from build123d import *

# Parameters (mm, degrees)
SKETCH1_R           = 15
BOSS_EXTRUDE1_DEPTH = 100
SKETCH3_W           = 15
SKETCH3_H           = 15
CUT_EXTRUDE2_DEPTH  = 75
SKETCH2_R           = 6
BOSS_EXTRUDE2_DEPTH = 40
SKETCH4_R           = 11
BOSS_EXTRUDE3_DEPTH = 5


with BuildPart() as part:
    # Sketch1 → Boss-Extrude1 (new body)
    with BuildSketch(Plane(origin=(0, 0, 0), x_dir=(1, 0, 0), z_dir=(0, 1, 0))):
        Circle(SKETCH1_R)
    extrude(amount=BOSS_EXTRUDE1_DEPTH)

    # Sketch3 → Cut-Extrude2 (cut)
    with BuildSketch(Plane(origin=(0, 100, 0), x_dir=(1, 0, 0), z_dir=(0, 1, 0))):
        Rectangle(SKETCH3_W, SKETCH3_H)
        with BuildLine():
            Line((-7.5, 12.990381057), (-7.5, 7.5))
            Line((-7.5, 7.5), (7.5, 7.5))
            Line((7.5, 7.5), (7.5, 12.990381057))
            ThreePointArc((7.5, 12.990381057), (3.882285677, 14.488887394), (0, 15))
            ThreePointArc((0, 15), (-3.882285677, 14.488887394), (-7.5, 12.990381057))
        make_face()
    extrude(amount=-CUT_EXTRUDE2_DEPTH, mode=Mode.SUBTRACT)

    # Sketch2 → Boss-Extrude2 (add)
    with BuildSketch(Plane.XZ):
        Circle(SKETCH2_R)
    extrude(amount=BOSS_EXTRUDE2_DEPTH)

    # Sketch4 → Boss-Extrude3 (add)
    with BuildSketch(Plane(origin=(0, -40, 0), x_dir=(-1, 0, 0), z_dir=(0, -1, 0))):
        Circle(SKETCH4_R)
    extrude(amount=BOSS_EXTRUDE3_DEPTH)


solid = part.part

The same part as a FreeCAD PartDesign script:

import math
import FreeCAD as App
import Part
import Sketcher

V = App.Vector
Q = App.Units.Quantity

doc = App.newDocument("Part")
body = doc.addObject("PartDesign::Body", "Body")

sketch1 = body.newObject("Sketcher::SketchObject", "Sketch")
sketch1.AttachmentSupport = (doc.getObject("XZ_Plane"), [""])
sketch1.MapMode = "FlatFace"
sketch1.addGeometry(Part.Circle(V(0, 0, 0), V(0, 0, 1), 15), False)
sketch1.addConstraint([
    Sketcher.Constraint("Coincident", 0, 3, -1, 1),
    Sketcher.Constraint("Diameter", 0, Q("30 mm")),
])
pad1 = body.newObject("PartDesign::Pad", "Pad")
pad1.Profile = sketch1
pad1.Length = 100
pad1.Reversed = True

sketch2 = body.newObject("Sketcher::SketchObject", "Sketch001")
sketch2.AttachmentSupport = (doc.getObject("XZ_Plane"), [""])
sketch2.MapMode = "FlatFace"
sketch2.AttachmentOffset = App.Placement(V(0, 0, -100), App.Rotation())
sketch2.addGeometry([
    Part.LineSegment(V(-8, 8, 0), V(8, 8, 0)),
    Part.LineSegment(V(8, 8, 0), V(8, -13, 0)),
    Part.ArcOfCircle(Part.Circle(V(0, 0, 0), V(0, 0, 1), 15), math.radians(-90), math.radians(-60)),
    Part.ArcOfCircle(Part.Circle(V(0, 0, 0), V(0, 0, 1), 15), math.radians(-120), math.radians(-90)),
    Part.LineSegment(V(-8, -13, 0), V(-8, 8, 0)),
], False)
sketch2.addConstraint([
    Sketcher.Constraint("Coincident", 0, 2, 1, 1),
    Sketcher.Constraint("Coincident", 1, 2, 2, 2),
    Sketcher.Constraint("Tangent", 2, 1, 3, 2),
    Sketcher.Constraint("Coincident", 3, 1, 4, 1),
    Sketcher.Constraint("Coincident", 4, 2, 0, 1),
    Sketcher.Constraint("Horizontal", 0),
    Sketcher.Constraint("Vertical", 1),
    Sketcher.Constraint("Vertical", 4),
    Sketcher.Constraint("Coincident", 2, 3, -1, 1),
    Sketcher.Constraint("Equal", 2, 3),
    Sketcher.Constraint("PointOnObject", 2, 1, -2),
    Sketcher.Constraint("Horizontal", 1, 2, 3, 1),
    Sketcher.Constraint("Radius", 2, Q("15 mm")),
    Sketcher.Constraint("DistanceX", 0, 1, 0, 2, Q("15 mm")),
    Sketcher.Constraint("DistanceY", -1, 1, 0, 2, Q("7.5 mm")),
])
pocket1 = body.newObject("PartDesign::Pocket", "Pocket")
pocket1.Profile = sketch2
pocket1.Length = 75
pocket1.Reversed = True

sketch3 = body.newObject("Sketcher::SketchObject", "Sketch002")
sketch3.AttachmentSupport = (doc.getObject("XZ_Plane"), [""])
sketch3.MapMode = "FlatFace"
sketch3.addGeometry(Part.Circle(V(0, 0, 0), V(0, 0, 1), 6), False)
sketch3.addConstraint([
    Sketcher.Constraint("Coincident", 0, 3, -1, 1),
    Sketcher.Constraint("Diameter", 0, Q("12 mm")),
])
pad2 = body.newObject("PartDesign::Pad", "Pad001")
pad2.Profile = sketch3
pad2.Length = 40

sketch4 = body.newObject("Sketcher::SketchObject", "Sketch003")
sketch4.AttachmentSupport = (doc.getObject("XZ_Plane"), [""])
sketch4.MapMode = "FlatFace"
sketch4.AttachmentOffset = App.Placement(V(0, 0, 40), App.Rotation())
sketch4.addGeometry(Part.Circle(V(0, 0, 0), V(0, 0, 1), 11), False)
sketch4.addConstraint([
    Sketcher.Constraint("Coincident", 0, 3, -1, 1),
    Sketcher.Constraint("Diameter", 0, Q("22 mm")),
])
pad3 = body.newObject("PartDesign::Pad", "Pad002")
pad3.Profile = sketch4
pad3.Length = 5

doc.recompute()
